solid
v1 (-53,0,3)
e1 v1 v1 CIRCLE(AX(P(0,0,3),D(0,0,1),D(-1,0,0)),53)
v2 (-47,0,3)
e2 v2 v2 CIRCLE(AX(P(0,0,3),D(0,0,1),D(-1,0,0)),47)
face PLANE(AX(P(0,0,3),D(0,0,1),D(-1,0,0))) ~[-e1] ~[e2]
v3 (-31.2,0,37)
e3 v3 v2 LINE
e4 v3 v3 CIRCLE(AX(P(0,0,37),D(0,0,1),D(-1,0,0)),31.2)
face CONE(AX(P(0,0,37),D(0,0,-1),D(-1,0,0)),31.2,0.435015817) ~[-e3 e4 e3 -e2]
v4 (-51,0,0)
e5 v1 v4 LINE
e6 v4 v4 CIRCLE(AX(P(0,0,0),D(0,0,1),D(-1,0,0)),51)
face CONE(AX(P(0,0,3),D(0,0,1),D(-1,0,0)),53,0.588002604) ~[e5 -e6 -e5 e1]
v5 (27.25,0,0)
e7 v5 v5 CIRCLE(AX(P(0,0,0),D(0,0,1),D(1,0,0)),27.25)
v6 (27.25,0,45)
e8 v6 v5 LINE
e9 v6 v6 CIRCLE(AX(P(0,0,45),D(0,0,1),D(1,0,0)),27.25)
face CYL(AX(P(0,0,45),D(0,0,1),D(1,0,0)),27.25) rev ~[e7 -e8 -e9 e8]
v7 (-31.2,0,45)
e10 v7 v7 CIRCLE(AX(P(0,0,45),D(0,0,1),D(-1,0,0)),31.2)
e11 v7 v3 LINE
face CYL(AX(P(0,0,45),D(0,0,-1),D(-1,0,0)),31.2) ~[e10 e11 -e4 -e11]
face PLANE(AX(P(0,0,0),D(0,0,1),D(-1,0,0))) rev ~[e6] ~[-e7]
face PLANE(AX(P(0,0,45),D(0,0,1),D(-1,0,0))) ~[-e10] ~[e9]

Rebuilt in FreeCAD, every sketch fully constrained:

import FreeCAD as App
import Part
import Sketcher
from FreeCAD import Vector

doc = App.newDocument("Part")
body = doc.addObject("PartDesign::Body", "Body")

# Sketch on XZ plane
sketch1 = doc.addObject("Sketcher::SketchObject", "Sketch")
body.addObject(sketch1)
sketch1.AttachmentSupport = (doc.XZ_Plane, [""])
sketch1.MapMode = "FlatFace"
sketch1.addGeometry([
    Part.LineSegment(Vector(-51, 0, 0), Vector(0, 0, 0)),  # 0
    Part.LineSegment(Vector(0, 0, 0), Vector(0, 45, 0)),  # 1
    Part.LineSegment(Vector(0, 45, 0), Vector(-31.2, 45, 0)),  # 2
    Part.LineSegment(Vector(-31.2, 45, 0), Vector(-31.2, 37, 0)),  # 3
    Part.LineSegment(Vector(-31.2, 37, 0), Vector(-47, 3, 0)),  # 4
    Part.LineSegment(Vector(-47, 3, 0), Vector(-53, 3, 0)),  # 5
    Part.LineSegment(Vector(-53, 3, 0), Vector(-51, 0, 0)),  # 6
], False)
sketch1.addConstraint([
    Sketcher.Constraint("Coincident", 0, 2, 1, 1),
    Sketcher.Constraint("Coincident", 1, 2, 2, 1),
    Sketcher.Constraint("Coincident", 2, 2, 3, 1),
    Sketcher.Constraint("Coincident", 3, 2, 4, 1),
    Sketcher.Constraint("Coincident", 4, 2, 5, 1),
    Sketcher.Constraint("Coincident", 5, 2, 6, 1),
    Sketcher.Constraint("Coincident", 6, 2, 0, 1),
    Sketcher.Constraint("Horizontal", 0),
    Sketcher.Constraint("Vertical", 1),
    Sketcher.Constraint("Horizontal", 2),
    Sketcher.Constraint("Vertical", 3),
    Sketcher.Constraint("Horizontal", 5),
    Sketcher.Constraint("Coincident", 0, 2, -1, 1),
    Sketcher.Constraint("DistanceX", 0, 1, 0, 2, 51.0),
    Sketcher.Constraint("DistanceX", 5, 2, 5, 1, 6.0),
    Sketcher.Constraint("DistanceY", 1, 1, 1, 2, 45.0),
    Sketcher.Constraint("DistanceY", 3, 2, 3, 1, 8.0),
    Sketcher.Constraint("DistanceX", 2, 2, 2, 1, 31.2),
    Sketcher.Constraint("DistanceX", 4, 2, -1, 1, 47.0),
    Sketcher.Constraint("DistanceY", -1, 1, 4, 2, 3.0),
])
revolution = doc.addObject("PartDesign::Revolution", "Revolution")
body.addObject(revolution)
revolution.Profile = sketch1
revolution.ReferenceAxis = (sketch1, ["V_Axis"])
revolution.Angle = 360

# Sketch on XY plane
sketch2 = doc.addObject("Sketcher::SketchObject", "Sketch001")
body.addObject(sketch2)
sketch2.AttachmentSupport = (doc.XY_Plane, [""])
sketch2.MapMode = "FlatFace"
sketch2.AttachmentOffset = App.Placement(Vector(0, 0, 45), App.Rotation())
sketch2.addGeometry(Part.Circle(Vector(0, 0, 0), Vector(0, 0, 1), 27), False)
sketch2.addConstraint([
    Sketcher.Constraint("Coincident", 0, 3, -1, 1),
    Sketcher.Constraint("Diameter", 0, 54.5),
])
pocket1 = doc.addObject("PartDesign::Pocket", "Pocket")
body.addObject(pocket1)
pocket1.Profile = sketch2
pocket1.Type = "ThroughAll"

doc.recompute()
